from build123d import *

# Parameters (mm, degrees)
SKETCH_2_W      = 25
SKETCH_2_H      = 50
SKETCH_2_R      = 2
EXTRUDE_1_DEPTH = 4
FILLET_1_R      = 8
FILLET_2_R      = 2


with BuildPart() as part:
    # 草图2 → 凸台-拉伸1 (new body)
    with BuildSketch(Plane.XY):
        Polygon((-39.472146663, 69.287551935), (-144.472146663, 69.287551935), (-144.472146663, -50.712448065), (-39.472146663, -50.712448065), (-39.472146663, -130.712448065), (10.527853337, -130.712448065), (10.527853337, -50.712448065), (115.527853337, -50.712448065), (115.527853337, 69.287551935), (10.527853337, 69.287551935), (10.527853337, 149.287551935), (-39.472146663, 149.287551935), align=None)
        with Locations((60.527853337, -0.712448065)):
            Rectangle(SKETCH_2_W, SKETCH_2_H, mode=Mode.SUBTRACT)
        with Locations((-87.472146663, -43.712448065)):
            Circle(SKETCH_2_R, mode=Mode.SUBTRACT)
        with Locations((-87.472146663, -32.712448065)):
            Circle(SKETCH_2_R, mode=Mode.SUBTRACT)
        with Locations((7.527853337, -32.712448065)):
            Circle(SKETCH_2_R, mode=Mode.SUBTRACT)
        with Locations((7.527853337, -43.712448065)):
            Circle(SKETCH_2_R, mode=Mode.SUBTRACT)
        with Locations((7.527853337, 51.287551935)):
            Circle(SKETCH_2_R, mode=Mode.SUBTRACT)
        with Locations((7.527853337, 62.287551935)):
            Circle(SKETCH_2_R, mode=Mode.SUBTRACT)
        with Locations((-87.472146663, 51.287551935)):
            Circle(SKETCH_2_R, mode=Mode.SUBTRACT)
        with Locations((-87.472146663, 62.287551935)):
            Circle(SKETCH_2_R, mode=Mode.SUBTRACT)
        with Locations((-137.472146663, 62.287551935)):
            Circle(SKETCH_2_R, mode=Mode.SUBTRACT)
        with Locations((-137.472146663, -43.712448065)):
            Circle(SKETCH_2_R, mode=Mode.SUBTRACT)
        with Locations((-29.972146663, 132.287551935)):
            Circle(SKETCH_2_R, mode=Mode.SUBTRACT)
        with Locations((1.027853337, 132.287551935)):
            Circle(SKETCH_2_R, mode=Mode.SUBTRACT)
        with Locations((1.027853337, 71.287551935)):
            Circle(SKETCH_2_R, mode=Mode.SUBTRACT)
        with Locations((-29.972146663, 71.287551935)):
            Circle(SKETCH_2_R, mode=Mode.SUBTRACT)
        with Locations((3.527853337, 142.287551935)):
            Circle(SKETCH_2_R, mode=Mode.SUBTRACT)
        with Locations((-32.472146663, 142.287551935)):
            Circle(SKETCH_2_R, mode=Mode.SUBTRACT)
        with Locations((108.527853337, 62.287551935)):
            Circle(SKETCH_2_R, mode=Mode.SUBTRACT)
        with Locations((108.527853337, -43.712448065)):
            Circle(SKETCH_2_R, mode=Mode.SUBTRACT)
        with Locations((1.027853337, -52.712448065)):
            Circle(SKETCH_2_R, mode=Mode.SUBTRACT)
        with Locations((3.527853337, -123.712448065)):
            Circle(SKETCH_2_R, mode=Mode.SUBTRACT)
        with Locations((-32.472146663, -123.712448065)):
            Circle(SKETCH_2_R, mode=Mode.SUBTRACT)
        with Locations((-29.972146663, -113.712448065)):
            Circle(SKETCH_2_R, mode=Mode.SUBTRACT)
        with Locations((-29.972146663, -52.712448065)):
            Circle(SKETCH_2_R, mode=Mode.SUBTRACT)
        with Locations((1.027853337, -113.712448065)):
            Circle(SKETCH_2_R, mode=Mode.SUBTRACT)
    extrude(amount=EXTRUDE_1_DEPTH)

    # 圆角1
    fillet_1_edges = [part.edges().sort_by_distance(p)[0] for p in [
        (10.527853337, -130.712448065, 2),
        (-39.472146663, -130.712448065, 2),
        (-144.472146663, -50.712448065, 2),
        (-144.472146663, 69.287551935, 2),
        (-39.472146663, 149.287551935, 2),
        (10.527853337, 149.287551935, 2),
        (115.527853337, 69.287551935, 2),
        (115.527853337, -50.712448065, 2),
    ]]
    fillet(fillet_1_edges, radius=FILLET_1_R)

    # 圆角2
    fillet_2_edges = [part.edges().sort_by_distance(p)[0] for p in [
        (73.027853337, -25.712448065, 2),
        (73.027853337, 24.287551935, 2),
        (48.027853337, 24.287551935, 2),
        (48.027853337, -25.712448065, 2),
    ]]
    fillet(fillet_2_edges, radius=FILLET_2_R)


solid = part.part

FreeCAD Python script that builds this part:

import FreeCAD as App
import Part
import Sketcher


def edges_at(feature, points):
    """Names of the edges that pass closest to the given points."""
    edges = feature.Shape.Edges
    near = lambda p: min(range(len(edges)), key=lambda i: edges[i].distToShape(Part.Vertex(*p))[0])
    return sorted({f"Edge{near(p) + 1}" for p in points})

doc = App.newDocument("Part")
params = doc.addObject("Spreadsheet::Sheet", "Params")
for row, (alias, value) in enumerate([
    ("sketch1_diameter", "4 mm"),
    ("sketch1_width", "105 mm"),
    ("sketch1_width2", "50 mm"),
    ("sketch1_width3", "25 mm"),
    ("sketch1_height", "120 mm"),
    ("pad1_length", "4 mm"),
    ("fillet_radius", "8 mm"),
    ("fillet2_radius", "2 mm"),
], start=1):
    params.set(f"A{row}", alias)
    params.set(f"B{row}", "=" + value)
    params.setAlias(f"B{row}", alias)

body = doc.addObject("PartDesign::Body", "Body")

# Sketch on XY plane
sketch1 = doc.addObject("Sketcher::SketchObject", "Sketch")
body.addObject(sketch1)
sketch1.AttachmentSupport = (doc.XY_Plane, [""])
sketch1.MapMode = "FlatFace"
sketch1.addGeometry([
    Part.LineSegment(App.Vector(-39.472147, 69.287552, 0), App.Vector(-144.472147, 69.287552, 0)),  # 0
    Part.LineSegment(App.Vector(-144.472147, 69.287552, 0), App.Vector(-144.472147, -50.712448, 0)),  # 1
    Part.LineSegment(App.Vector(-144.472147, -50.712448, 0), App.Vector(-39.472147, -50.712448, 0)),  # 2
    Part.LineSegment(App.Vector(-39.472147, -50.712448, 0), App.Vector(-39.472147, -130.712448, 0)),  # 3
    Part.LineSegment(App.Vector(-39.472147, -130.712448, 0), App.Vector(10.527853, -130.712448, 0)),  # 4
    Part.LineSegment(App.Vector(10.527853, -130.712448, 0), App.Vector(10.527853, -50.712448, 0)),  # 5
    Part.LineSegment(App.Vector(10.527853, -50.712448, 0), App.Vector(115.527853, -50.712448, 0)),  # 6
    Part.LineSegment(App.Vector(115.527853, -50.712448, 0), App.Vector(115.527853, 69.287552, 0)),  # 7
    Part.LineSegment(App.Vector(115.527853, 69.287552, 0), App.Vector(10.527853, 69.287552, 0)),  # 8
    Part.LineSegment(App.Vector(10.527853, 69.287552, 0), App.Vector(10.527853, 149.287552, 0)),  # 9
    Part.LineSegment(App.Vector(10.527853, 149.287552, 0), App.Vector(-39.472147, 149.287552, 0)),  # 10
    Part.LineSegment(App.Vector(-39.472147, 149.287552, 0), App.Vector(-39.472147, 69.287552, 0)),  # 11
    Part.Circle(App.Vector(-32.472147, -123.712448, 0), App.Vector(0, 0, 1), 2),  # 12
    Part.Circle(App.Vector(-29.972147, -113.712448, 0), App.Vector(0, 0, 1), 2),  # 13
    Part.Circle(App.Vector(-137.472147, -43.712448, 0), App.Vector(0, 0, 1), 2),  # 14
    Part.Circle(App.Vector(-87.472147, -43.712448, 0), App.Vector(0, 0, 1), 2),  # 15
    Part.Circle(App.Vector(-87.472147, -32.712448, 0), App.Vector(0, 0, 1), 2),  # 16
    Part.Circle(App.Vector(-29.972147, -52.712448, 0), App.Vector(0, 0, 1), 2),  # 17
    Part.Circle(App.Vector(1.027853, -113.712448, 0), App.Vector(0, 0, 1), 2),  # 18
    Part.Circle(App.Vector(3.527853, -123.712448, 0), App.Vector(0, 0, 1), 2),  # 19
    Part.Circle(App.Vector(1.027853, -52.712448, 0), App.Vector(0, 0, 1), 2),  # 20
    Part.Circle(App.Vector(7.527853, -43.712448, 0), App.Vector(0, 0, 1), 2),  # 21
    Part.Circle(App.Vector(7.527853, -32.712448, 0), App.Vector(0, 0, 1), 2),  # 22
    Part.Circle(App.Vector(108.527853, -43.712448, 0), App.Vector(0, 0, 1), 2),  # 23
    Part.LineSegment(App.Vector(73.027853, -25.712448, 0), App.Vector(48.027853, -25.712448, 0)),  # 24
    Part.LineSegment(App.Vector(48.027853, -25.712448, 0), App.Vector(48.027853, 24.287552, 0)),  # 25
    Part.LineSegment(App.Vector(48.027853, 24.287552, 0), App.Vector(73.027853, 24.287552, 0)),  # 26
    Part.LineSegment(App.Vector(73.027853, 24.287552, 0), App.Vector(73.027853, -25.712448, 0)),  # 27
    Part.Circle(App.Vector(-137.472147, 62.287552, 0), App.Vector(0, 0, 1), 2),  # 28
    Part.Circle(App.Vector(-87.472147, 51.287552, 0), App.Vector(0, 0, 1), 2),  # 29
    Part.Circle(App.Vector(-87.472147, 62.287552, 0), App.Vector(0, 0, 1), 2),  # 30
    Part.Circle(App.Vector(-29.972147, 71.287552, 0), App.Vector(0, 0, 1), 2),  # 31
    Part.Circle(App.Vector(-32.472147, 142.287552, 0), App.Vector(0, 0, 1), 2),  # 32
    Part.Circle(App.Vector(-29.972147, 132.287552, 0), App.Vector(0, 0, 1), 2),  # 33
    Part.Circle(App.Vector(7.527853, 51.287552, 0), App.Vector(0, 0, 1), 2),  # 34
    Part.Circle(App.Vector(1.027853, 71.287552, 0), App.Vector(0, 0, 1), 2),  # 35
    Part.Circle(App.Vector(7.527853, 62.287552, 0), App.Vector(0, 0, 1), 2),  # 36
    Part.Circle(App.Vector(108.527853, 62.287552, 0), App.Vector(0, 0, 1), 2),  # 37
    Part.Circle(App.Vector(1.027853, 132.287552, 0), App.Vector(0, 0, 1), 2),  # 38
    Part.Circle(App.Vector(3.527853, 142.287552, 0), App.Vector(0, 0, 1), 2),  # 39
], False)
sketch1.addConstraint([
    Sketcher.Constraint("Coincident", 0, 2, 1, 1),
    Sketcher.Constraint("Coincident", 1, 2, 2, 1),
    Sketcher.Constraint("Coincident", 2, 2, 3, 1),
    Sketcher.Constraint("Coincident", 3, 2, 4, 1),
    Sketcher.Constraint("Coincident", 4, 2, 5, 1),
    Sketcher.Constraint("Coincident", 5, 2, 6, 1),
    Sketcher.Constraint("Coincident", 6, 2, 7, 1),
    Sketcher.Constraint("Coincident", 7, 2, 8, 1),
    Sketcher.Constraint("Coincident", 8, 2, 9, 1),
    Sketcher.Constraint("Coincident", 9, 2, 10, 1),
    Sketcher.Constraint("Coincident", 10, 2, 11, 1),
    Sketcher.Constraint("Coincident", 11, 2, 0, 1),
    Sketcher.Constraint("Coincident", 24, 2, 25, 1),
    Sketcher.Constraint("Coincident", 25, 2, 26, 1),
    Sketcher.Constraint("Coincident", 26, 2, 27, 1),
    Sketcher.Constraint("Coincident", 27, 2, 24, 1),
    Sketcher.Constraint("Horizontal", 0),
    Sketcher.Constraint("Vertical", 1),
    Sketcher.Constraint("Horizontal", 2),
    Sketcher.Constraint("Vertical", 3),
    Sketcher.Constraint("Horizontal", 4),
    Sketcher.Constraint("Vertical", 5),
    Sketcher.Constraint("Horizontal", 6),
    Sketcher.Constraint("Vertical", 7),
    Sketcher.Constraint("Horizontal", 8),
    Sketcher.Constraint("Vertical", 9),
    Sketcher.Constraint("Horizontal", 10),
    Sketcher.Constraint("Vertical", 11),
    Sketcher.Constraint("Horizontal", 24),
    Sketcher.Constraint("Vertical", 25),
    Sketcher.Constraint("Horizontal", 26),
    Sketcher.Constraint("Vertical", 27),
    Sketcher.Constraint("Equal", 12, 13),
    Sketcher.Constraint("Equal", 13, 14),
    Sketcher.Constraint("Equal", 14, 15),
    Sketcher.Constraint("Equal", 15, 16),
    Sketcher.Constraint("Equal", 16, 17),
    Sketcher.Constraint("Equal", 17, 18),
    Sketcher.Constraint("Equal", 18, 19),
    Sketcher.Constraint("Equal", 19, 20),
    Sketcher.Constraint("Equal", 20, 21),
    Sketcher.Constraint("Equal", 21, 22),
    Sketcher.Constraint("Equal", 22, 23),
    Sketcher.Constraint("Equal", 23, 28),
    Sketcher.Constraint("Equal", 28, 29),
    Sketcher.Constraint("Equal", 29, 30),
    Sketcher.Constraint("Equal", 30, 31),
    Sketcher.Constraint("Equal", 31, 32),
    Sketcher.Constraint("Equal", 32, 33),
    Sketcher.Constraint("Equal", 33, 34),
    Sketcher.Constraint("Equal", 34, 35),
    Sketcher.Constraint("Equal", 35, 36),
    Sketcher.Constraint("Equal", 36, 37),
    Sketcher.Constraint("Equal", 37, 38),
    Sketcher.Constraint("Equal", 38, 39),
    Sketcher.Constraint("Horizontal", 14, 3, 15, 3),
    Sketcher.Constraint("Horizontal", 13, 3, 18, 3),
    Sketcher.Constraint("Horizontal", 12, 3, 19, 3),
    Sketcher.Constraint("Horizontal", 17, 3, 20, 3),
    Sketcher.Constraint("Horizontal", 15, 3, 21, 3),
    Sketcher.Constraint("Horizontal", 16, 3, 22, 3),
    Sketcher.Constraint("Horizontal", 21, 3, 23, 3),
    Sketcher.Constraint("Horizontal", 28, 3, 30, 3),
    Sketcher.Constraint("Horizontal", 29, 3, 34, 3),
    Sketcher.Constraint("Horizontal", 31, 3, 35, 3),
    Sketcher.Constraint("Horizontal", 30, 3, 36, 3),
    Sketcher.Constraint("Horizontal", 36, 3, 37, 3),
    Sketcher.Constraint("Horizontal", 33, 3, 38, 3),
    Sketcher.Constraint("Horizontal", 32, 3, 39, 3),
    Sketcher.Constraint("Horizontal", 2, 2, 5, 2),
    Sketcher.Constraint("Horizontal", 0, 2, 7, 2),
    Sketcher.Constraint("Vertical", 15, 3, 16, 3),
    Sketcher.Constraint("Vertical", 13, 3, 17, 3),
    Sketcher.Constraint("Vertical", 18, 3, 20, 3),
    Sketcher.Constraint("Vertical", 21, 3, 22, 3),
    Sketcher.Constraint("Vertical", 14, 3, 28, 3),
    Sketcher.Constraint("Vertical", 16, 3, 29, 3),
    Sketcher.Constraint("Vertical", 29, 3, 30, 3),
    Sketcher.Constraint("Vertical", 17, 3, 31, 3),
    Sketcher.Constraint("Vertical", 12, 3, 32, 3),
    Sketcher.Constraint("Vertical", 31, 3, 33, 3),
    Sketcher.Constraint("Vertical", 22, 3, 34, 3),
    Sketcher.Constraint("Vertical", 20, 3, 35, 3),
    Sketcher.Constraint("Vertical", 34, 3, 36, 3),
    Sketcher.Constraint("Vertical", 23, 3, 37, 3),
    Sketcher.Constraint("Vertical", 35, 3, 38, 3),
    Sketcher.Constraint("Vertical", 19, 3, 39, 3),
    Sketcher.Constraint("Vertical", 5, 2, 8, 2),
    Sketcher.Constraint("Vertical", 3, 2, 10, 2),
    Sketcher.Constraint("Equal", 2, 6),
    Sketcher.Constraint("Equal", 5, 9),
    Sketcher.Constraint("Equal", 10, 25),
    Sketcher.Constraint("Diameter", 12, 4.0),
    Sketcher.Constraint("DistanceX", 0, 2, 0, 1, 105.0),
    Sketcher.Constraint("DistanceX", 4, 1, 4, 2, 50.0),
    Sketcher.Constraint("DistanceX", 24, 2, 24, 1, 25.0),
    Sketcher.Constraint("DistanceY", 1, 2, 1, 1, 120.0),
    Sketcher.Constraint("DistanceY", 3, 2, 3, 1, 80.0),
    Sketcher.Constraint("DistanceY", 12, 3, 13, 3, 10.0),
    Sketcher.Constraint("DistanceY", 13, 3, 14, 3, 70.0),
    Sketcher.Constraint("DistanceX", 14, 3, 12, 3, 105.0),
    Sketcher.Constraint("DistanceX", 14, 3, 15, 3, 50.0),
    Sketcher.Constraint("DistanceY", 15, 3, 16, 3, 11.0),
    Sketcher.Constraint("DistanceY", 17, 3, 15, 3, 9.0),
    Sketcher.Constraint("DistanceX", 13, 3, 18, 3, 31.0),
    Sketcher.Constraint("DistanceX", 12, 3, 19, 3, 36.0),
    Sketcher.Constraint("DistanceX", 19, 3, 21, 3, 4.0),
    Sketcher.Constraint("DistanceX", 21, 3, 23, 3, 101.0),
    Sketcher.Constraint("DistanceY", 14, 3, 28, 3, 106.0),
    Sketcher.Constraint("DistanceY", 29, 3, 28, 3, 11.0),
    Sketcher.Constraint("DistanceY", 30, 3, 31, 3, 9.0),
    Sketcher.Constraint("DistanceY", 31, 3, 32, 3, 71.0),
    Sketcher.Constraint("DistanceY", 33, 3, 32, 3, 10.0),
    Sketcher.Constraint("DistanceX", 0, 2, 28, 3, 7.0),
    Sketcher.Constraint("DistanceY", 28, 3, 0, 2, 7.0),
    Sketcher.Constraint("DistanceY", 22, 3, 24, 2, 7.0),
    Sketcher.Constraint("DistanceX", 20, 3, 24, 2, 47.0),
    Sketcher.Constraint("DistanceX", 12, 3, 13, 3, 2.5),
    Sketcher.Constraint("DistanceY", 12, 3, -1, 1, 123.712448),
    Sketcher.Constraint("DistanceX", 12, 3, -1, 1, 32.472147),
])
sketch1.setExpression("Constraints[92]", "Params.sketch1_diameter")
sketch1.setExpression("Constraints[93]", "Params.sketch1_width")
sketch1.setExpression("Constraints[94]", "Params.sketch1_width2")
sketch1.setExpression("Constraints[95]", "Params.sketch1_width3")
sketch1.setExpression("Constraints[96]", "Params.sketch1_height")
pad1 = doc.addObject("PartDesign::Pad", "Pad")
body.addObject(pad1)
pad1.Profile = sketch1
pad1.setExpression("Length", "Params.pad1_length")
doc.recompute()

fillet = doc.addObject("PartDesign::Fillet", "Fillet")
body.addObject(fillet)
fillet.Base = (pad1, edges_at(pad1, [
    (10.528, -130.712, 2),
    (-39.472, -130.712, 2),
    (-144.472, -50.712, 2),
    (-144.472, 69.288, 2),
    (-39.472, 149.288, 2),
    (10.528, 149.288, 2),
    (115.528, 69.288, 2),
    (115.528, -50.712, 2),
]))
fillet.setExpression("Radius", "Params.fillet_radius")
doc.recompute()

fillet2 = doc.addObject("PartDesign::Fillet", "Fillet001")
body.addObject(fillet2)
fillet2.Base = (fillet, edges_at(fillet, [
    (73.028, -25.712, 2),
    (73.028, 24.288, 2),
    (48.028, 24.288, 2),
    (48.028, -25.712, 2),
]))
fillet2.setExpression("Radius", "Params.fillet2_radius")

doc.recompute()
